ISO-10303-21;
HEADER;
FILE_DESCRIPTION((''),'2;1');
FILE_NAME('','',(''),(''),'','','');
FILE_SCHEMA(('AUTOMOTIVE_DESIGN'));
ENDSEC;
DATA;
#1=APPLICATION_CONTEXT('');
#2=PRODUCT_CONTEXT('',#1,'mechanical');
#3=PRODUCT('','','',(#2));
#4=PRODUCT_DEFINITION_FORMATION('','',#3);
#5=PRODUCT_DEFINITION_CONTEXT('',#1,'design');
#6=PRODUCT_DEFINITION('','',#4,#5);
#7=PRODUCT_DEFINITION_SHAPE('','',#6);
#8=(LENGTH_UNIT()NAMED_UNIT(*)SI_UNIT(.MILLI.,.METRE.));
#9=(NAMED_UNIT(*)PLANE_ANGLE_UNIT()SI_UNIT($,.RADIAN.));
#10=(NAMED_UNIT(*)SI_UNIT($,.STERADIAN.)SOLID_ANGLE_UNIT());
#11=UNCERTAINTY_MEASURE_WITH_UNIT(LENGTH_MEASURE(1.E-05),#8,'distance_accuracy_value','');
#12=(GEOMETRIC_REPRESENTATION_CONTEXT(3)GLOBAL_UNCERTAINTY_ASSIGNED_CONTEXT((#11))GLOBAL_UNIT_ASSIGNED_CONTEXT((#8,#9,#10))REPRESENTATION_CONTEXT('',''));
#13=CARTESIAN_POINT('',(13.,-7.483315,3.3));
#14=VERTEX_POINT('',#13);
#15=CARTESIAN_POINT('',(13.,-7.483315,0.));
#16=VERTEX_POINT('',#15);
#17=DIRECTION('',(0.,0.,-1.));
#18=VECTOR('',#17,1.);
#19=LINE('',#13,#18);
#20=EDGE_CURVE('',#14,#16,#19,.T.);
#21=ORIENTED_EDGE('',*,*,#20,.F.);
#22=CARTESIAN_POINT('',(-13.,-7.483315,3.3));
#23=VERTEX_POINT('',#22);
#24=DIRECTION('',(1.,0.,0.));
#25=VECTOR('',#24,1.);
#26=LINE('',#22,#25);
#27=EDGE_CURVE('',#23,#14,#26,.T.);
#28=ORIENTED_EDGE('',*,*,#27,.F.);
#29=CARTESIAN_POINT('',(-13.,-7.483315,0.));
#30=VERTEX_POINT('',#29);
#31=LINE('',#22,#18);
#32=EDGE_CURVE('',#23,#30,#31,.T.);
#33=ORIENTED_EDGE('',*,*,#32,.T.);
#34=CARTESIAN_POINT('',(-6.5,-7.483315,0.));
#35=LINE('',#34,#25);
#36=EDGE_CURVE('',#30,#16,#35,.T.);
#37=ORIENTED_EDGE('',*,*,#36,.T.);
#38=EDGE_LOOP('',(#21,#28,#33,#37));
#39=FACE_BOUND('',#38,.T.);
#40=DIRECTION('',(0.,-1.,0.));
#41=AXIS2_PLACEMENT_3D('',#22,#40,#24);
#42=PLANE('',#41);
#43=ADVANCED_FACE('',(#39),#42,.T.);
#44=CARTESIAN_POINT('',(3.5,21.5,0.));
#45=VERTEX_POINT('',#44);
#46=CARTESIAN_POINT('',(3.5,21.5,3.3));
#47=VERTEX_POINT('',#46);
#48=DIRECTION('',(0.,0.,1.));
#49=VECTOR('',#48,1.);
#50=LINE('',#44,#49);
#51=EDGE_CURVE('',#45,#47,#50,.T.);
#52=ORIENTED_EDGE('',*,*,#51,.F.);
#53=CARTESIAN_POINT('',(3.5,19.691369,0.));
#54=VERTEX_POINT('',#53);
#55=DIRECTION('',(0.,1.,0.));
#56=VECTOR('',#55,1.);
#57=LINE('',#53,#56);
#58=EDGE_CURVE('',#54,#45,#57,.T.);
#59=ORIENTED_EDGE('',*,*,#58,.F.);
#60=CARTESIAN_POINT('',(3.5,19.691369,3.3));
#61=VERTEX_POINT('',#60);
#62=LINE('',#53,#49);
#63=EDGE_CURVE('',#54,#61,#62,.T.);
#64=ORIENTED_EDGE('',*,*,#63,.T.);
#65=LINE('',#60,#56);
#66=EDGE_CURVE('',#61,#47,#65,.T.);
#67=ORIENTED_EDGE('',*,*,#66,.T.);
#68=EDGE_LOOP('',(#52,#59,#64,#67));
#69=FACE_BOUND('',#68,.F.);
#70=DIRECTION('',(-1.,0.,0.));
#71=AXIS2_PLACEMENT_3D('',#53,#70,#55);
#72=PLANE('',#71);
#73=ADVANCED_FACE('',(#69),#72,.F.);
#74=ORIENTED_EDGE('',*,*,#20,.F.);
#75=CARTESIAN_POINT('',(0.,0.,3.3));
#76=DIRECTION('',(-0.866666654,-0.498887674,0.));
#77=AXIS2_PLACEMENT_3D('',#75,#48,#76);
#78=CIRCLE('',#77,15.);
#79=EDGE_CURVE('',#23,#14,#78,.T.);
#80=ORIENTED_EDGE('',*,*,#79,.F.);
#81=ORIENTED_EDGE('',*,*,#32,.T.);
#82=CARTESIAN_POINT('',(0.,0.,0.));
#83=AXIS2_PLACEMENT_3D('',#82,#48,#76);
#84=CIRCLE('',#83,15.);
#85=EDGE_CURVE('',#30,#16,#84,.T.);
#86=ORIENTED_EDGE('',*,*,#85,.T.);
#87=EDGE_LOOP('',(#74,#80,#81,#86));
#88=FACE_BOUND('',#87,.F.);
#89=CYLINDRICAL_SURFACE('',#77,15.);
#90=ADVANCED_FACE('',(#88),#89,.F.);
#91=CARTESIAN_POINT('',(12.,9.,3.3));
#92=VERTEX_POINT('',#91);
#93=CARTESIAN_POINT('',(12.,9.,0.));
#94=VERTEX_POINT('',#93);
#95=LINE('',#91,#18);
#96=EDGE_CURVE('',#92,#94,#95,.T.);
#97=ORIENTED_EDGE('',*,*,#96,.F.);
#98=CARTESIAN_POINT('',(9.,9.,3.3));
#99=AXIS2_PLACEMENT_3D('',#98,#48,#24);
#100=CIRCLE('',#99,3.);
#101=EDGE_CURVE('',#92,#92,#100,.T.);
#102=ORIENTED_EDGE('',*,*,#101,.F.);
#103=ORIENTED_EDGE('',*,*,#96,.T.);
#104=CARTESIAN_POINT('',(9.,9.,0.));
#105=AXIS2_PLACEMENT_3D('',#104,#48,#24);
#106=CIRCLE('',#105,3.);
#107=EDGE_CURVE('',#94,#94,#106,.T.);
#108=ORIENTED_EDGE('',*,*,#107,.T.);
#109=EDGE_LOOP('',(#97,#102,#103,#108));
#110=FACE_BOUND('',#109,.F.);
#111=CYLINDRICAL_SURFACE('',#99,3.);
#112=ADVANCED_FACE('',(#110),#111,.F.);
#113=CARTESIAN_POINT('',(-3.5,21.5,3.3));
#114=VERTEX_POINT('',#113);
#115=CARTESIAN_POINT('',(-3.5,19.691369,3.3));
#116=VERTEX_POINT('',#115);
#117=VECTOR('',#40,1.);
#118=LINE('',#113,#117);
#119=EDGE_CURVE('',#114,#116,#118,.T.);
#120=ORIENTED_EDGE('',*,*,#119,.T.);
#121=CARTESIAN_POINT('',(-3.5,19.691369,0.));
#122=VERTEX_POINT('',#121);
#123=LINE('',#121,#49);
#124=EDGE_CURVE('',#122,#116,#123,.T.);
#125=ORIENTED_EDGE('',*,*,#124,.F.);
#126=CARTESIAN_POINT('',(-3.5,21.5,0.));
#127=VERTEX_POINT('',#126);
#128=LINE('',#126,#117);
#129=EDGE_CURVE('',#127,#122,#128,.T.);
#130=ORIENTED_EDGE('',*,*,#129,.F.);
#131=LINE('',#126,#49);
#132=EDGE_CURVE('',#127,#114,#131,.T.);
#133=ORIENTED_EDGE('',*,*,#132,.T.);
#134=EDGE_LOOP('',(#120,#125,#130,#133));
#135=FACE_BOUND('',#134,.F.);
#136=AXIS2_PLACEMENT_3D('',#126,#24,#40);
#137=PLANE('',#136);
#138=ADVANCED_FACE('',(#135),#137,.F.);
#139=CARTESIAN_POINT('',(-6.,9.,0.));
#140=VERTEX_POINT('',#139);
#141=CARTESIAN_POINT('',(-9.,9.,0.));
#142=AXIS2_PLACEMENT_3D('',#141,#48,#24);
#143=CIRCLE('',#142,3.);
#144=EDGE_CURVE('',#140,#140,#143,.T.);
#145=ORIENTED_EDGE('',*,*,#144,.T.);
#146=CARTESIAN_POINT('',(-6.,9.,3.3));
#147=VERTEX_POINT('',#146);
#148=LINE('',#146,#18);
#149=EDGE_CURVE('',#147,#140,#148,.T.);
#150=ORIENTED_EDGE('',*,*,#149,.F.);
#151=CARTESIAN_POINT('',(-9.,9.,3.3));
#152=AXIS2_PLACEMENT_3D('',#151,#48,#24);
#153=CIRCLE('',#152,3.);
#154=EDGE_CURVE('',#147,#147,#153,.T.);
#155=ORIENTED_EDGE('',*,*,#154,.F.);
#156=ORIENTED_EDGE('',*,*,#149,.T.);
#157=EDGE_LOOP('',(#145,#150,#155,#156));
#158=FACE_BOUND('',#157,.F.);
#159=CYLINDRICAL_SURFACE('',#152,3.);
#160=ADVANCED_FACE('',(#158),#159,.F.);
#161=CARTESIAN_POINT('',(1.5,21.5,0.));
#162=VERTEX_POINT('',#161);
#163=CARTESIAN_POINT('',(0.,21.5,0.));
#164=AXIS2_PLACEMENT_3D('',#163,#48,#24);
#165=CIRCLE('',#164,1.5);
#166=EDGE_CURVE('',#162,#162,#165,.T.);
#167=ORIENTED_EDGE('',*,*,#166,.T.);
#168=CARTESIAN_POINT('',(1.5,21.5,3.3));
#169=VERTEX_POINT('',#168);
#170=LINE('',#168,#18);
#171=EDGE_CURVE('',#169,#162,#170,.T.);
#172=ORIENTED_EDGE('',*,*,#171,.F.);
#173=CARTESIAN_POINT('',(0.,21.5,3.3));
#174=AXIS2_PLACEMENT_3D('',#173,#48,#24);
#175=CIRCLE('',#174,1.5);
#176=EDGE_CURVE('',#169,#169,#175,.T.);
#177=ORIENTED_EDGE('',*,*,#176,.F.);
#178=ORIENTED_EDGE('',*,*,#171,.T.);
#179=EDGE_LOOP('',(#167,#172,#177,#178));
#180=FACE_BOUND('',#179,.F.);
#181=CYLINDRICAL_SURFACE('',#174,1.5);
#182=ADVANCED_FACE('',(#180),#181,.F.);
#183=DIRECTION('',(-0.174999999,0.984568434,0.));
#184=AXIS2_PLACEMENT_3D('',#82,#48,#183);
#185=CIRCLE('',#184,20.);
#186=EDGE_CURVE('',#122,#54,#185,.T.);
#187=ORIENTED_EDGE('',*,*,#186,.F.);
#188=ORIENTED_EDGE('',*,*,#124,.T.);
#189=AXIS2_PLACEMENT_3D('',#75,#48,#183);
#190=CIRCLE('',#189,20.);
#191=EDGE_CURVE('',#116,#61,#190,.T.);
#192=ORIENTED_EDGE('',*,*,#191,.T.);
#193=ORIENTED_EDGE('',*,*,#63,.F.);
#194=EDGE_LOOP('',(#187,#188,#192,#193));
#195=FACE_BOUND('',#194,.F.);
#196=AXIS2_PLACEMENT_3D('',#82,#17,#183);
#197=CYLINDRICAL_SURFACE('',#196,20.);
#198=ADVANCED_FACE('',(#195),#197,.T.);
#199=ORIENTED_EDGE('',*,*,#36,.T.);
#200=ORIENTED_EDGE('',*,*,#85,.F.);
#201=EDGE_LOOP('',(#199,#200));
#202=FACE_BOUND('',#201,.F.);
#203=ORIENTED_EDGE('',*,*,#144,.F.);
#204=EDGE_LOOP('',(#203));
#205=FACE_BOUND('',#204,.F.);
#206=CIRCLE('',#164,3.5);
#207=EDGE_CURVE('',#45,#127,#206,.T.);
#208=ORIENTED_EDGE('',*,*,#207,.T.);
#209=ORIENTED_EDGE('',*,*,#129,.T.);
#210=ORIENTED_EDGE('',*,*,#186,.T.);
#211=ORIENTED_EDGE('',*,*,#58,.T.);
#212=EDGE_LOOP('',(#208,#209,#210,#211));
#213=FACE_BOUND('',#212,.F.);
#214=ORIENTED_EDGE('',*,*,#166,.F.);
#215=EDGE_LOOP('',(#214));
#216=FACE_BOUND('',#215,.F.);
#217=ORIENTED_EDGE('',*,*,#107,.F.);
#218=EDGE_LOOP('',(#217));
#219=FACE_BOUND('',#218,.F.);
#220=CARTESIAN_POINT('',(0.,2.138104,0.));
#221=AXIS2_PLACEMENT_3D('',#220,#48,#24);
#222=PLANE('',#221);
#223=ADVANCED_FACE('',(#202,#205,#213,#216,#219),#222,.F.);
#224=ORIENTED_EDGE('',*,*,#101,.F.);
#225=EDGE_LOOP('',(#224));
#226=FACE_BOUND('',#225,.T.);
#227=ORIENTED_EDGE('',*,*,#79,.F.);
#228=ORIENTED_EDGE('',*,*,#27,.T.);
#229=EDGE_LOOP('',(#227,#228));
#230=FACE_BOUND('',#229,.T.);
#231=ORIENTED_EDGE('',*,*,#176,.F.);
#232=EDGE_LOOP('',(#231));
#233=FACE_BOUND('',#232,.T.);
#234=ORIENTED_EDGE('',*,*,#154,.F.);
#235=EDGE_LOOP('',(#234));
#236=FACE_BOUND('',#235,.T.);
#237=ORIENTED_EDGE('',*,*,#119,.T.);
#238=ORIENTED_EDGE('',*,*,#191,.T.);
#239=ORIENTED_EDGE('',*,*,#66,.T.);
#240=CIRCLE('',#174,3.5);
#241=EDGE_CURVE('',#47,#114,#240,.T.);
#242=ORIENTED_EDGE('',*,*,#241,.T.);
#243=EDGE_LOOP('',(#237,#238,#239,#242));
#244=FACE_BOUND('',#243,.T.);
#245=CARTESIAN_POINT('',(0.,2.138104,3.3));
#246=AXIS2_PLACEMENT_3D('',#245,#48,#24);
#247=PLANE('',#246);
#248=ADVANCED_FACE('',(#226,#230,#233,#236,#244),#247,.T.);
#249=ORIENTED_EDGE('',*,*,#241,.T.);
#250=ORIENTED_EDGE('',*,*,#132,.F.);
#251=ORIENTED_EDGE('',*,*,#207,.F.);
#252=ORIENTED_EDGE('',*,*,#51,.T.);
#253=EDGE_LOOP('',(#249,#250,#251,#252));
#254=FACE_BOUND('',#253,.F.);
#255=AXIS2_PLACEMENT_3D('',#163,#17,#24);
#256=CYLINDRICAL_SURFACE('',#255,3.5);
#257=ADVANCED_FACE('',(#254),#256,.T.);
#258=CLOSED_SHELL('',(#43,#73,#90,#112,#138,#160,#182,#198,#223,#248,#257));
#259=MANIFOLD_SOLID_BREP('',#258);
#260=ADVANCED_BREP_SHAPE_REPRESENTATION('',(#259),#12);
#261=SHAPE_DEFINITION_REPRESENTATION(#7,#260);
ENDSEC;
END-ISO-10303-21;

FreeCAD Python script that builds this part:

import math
import FreeCAD as App
import Part
import Sketcher
Q = App.Units.Quantity

doc = App.newDocument("Part")
body = doc.addObject("PartDesign::Body", "Body")

sketch1 = body.newObject("Sketcher::SketchObject", "Sketch")
sketch1.AttachmentSupport = (doc.getObject("XY_Plane"), [""])
sketch1.MapMode = "FlatFace"
sketch1.addGeometry([
    Part.ArcOfCircle(Part.Circle(App.Vector(0, 21.5, 0), App.Vector(0, 0, 1), 3.5), math.radians(0), math.radians(180)),
    Part.LineSegment(App.Vector(-3.5, 21.5, 0), App.Vector(-3.5, 19.691369, 0)),
    Part.ArcOfCircle(Part.Circle(App.Vector(0, 0, 0), App.Vector(0, 0, 1), 20), math.radians(100.078658), math.radians(439.921342)),
    Part.LineSegment(App.Vector(3.5, 19.691369, 0), App.Vector(3.5, 21.5, 0)),
], False)
sketch1.addConstraint([
    Sketcher.Constraint("Tangent", 0, 2, 1, 1),
    Sketcher.Constraint("Coincident", 1, 2, 2, 1),
    Sketcher.Constraint("Coincident", 2, 2, 3, 1),
    Sketcher.Constraint("Tangent", 3, 2, 0, 1),
    Sketcher.Constraint("Vertical", 1),
    Sketcher.Constraint("Vertical", 3),
    Sketcher.Constraint("Coincident", 2, 3, -1, 1),
    Sketcher.Constraint("PointOnObject", 0, 3, -2),
    Sketcher.Constraint("Radius", 2, Q("20 mm")),
    Sketcher.Constraint("Radius", 0, Q("3.5 mm")),
    Sketcher.Constraint("DistanceY", -1, 1, 0, 3, Q("21.5 mm")),
])
pad1 = body.newObject("PartDesign::Pad", "Pad")
pad1.Profile = sketch1
pad1.Length = 3.3

sketch2 = body.newObject("Sketcher::SketchObject", "Sketch001")
sketch2.AttachmentSupport = (doc.getObject("XY_Plane"), [""])
sketch2.MapMode = "FlatFace"
sketch2.AttachmentOffset = App.Placement(App.Vector(0, 0, 3.3), App.Rotation())
sketch2.addGeometry(Part.Circle(App.Vector(0, 21.5, 0), App.Vector(0, 0, 1), 1.5), False)
sketch2.addConstraint([
    Sketcher.Constraint("PointOnObject", 0, 3, -2),
    Sketcher.Constraint("Diameter", 0, Q("3 mm")),
    Sketcher.Constraint("DistanceY", -1, 1, 0, 3, Q("21.5 mm")),
])
pocket1 = body.newObject("PartDesign::Pocket", "Pocket")
pocket1.Profile = sketch2
pocket1.Type = "ThroughAll"

sketch3 = body.newObject("Sketcher::SketchObject", "Sketch002")
sketch3.AttachmentSupport = (doc.getObject("XY_Plane"), [""])
sketch3.MapMode = "FlatFace"
sketch3.AttachmentOffset = App.Placement(App.Vector(0, 0, 3.3), App.Rotation())
sketch3.addGeometry([
    Part.Circle(App.Vector(-9, 9, 0), App.Vector(0, 0, 1), 3),
    Part.Circle(App.Vector(9, 9, 0), App.Vector(0, 0, 1), 3),
    Part.ArcOfCircle(Part.Circle(App.Vector(0, 0, 0), App.Vector(0, 0, 1), 15), math.radians(-150.073564), math.radians(-29.926436)),
    Part.LineSegment(App.Vector(13, -7.483315, 0), App.Vector(-13, -7.483315, 0)),
], False)
sketch3.addConstraint([
    Sketcher.Constraint("Coincident", 2, 1, 3, 2),
    Sketcher.Constraint("Coincident", 3, 1, 2, 2),
    Sketcher.Constraint("Horizontal", 3),
    Sketcher.Constraint("Coincident", 2, 3, -1, 1),
    Sketcher.Constraint("Equal", 0, 1),
    Sketcher.Constraint("Symmetric", 0, 3, 1, 3, -2),
    Sketcher.Constraint("Diameter", 0, Q("6 mm")),
    Sketcher.Constraint("Radius", 2, Q("15 mm")),
    Sketcher.Constraint("DistanceX", 3, 2, 3, 1, Q("26 mm")),
    Sketcher.Constraint("DistanceX", 0, 3, -1, 1, Q("9 mm")),
    Sketcher.Constraint("DistanceY", -1, 1, 0, 3, Q("9 mm")),
])
pocket2 = body.newObject("PartDesign::Pocket", "Pocket001")
pocket2.Profile = sketch3
pocket2.Type = "ThroughAll"

doc.recompute()
